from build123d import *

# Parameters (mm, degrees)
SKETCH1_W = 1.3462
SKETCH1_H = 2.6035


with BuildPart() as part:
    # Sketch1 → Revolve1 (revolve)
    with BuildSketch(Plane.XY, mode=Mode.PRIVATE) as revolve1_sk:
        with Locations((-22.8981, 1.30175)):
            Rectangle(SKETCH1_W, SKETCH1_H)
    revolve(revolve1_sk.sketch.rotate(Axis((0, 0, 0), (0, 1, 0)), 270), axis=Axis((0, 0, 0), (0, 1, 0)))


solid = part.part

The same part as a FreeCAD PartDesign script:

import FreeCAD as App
import Part
import Sketcher
from FreeCAD import Vector
Q = App.Units.Quantity


def add_polygon(sketch, points):
    """Adds a closed chain of lines whose ends are joined by coincident constraints."""
    first, n = sketch.GeometryCount, len(points)
    for a, b in zip(points, points[1:] + points[:1]):
        sketch.addGeometry(Part.LineSegment(App.Vector(*a, 0), App.Vector(*b, 0)), False)
    for i in range(n):
        sketch.addConstraint(Sketcher.Constraint("Coincident", first + i, 2, first + (i + 1) % n, 1))

doc = App.newDocument("Part")
params = doc.addObject("Spreadsheet::Sheet", "Params")
for row, (alias, value) in enumerate([
    ("sketch1_width", "0.053 in"),
    ("revolution_angle", "360 deg"),
], start=1):
    params.set(f"A{row}", alias)
    params.set(f"B{row}", "=" + value)
    params.setAlias(f"B{row}", alias)

body = doc.addObject("PartDesign::Body", "Body")

sketch1 = doc.addObject("Sketcher::SketchObject", "Sketch")
body.addObject(sketch1)
sketch1.AttachmentSupport = (doc.XY_Plane, [""])
sketch1.MapMode = "FlatFace"
add_polygon(sketch1, [(-23.6, 2.6), (-23.6, 0), (-22.2, 0), (-22.2, 2.6)])
sketch1.addConstraint([
    Sketcher.Constraint("Vertical", 0),
    Sketcher.Constraint("Horizontal", 1),
    Sketcher.Constraint("Vertical", 2),
    Sketcher.Constraint("Horizontal", 3),
    Sketcher.Constraint("PointOnObject", 0, 2, -1),
    Sketcher.Constraint("DistanceX", 1, 1, 1, 2, Q("0.053 in")),
    Sketcher.Constraint("DistanceY", 0, 2, 0, 1, Q("0.1025 in")),
    Sketcher.Constraint("DistanceX", 0, 2, -1, 1, Q("0.928 in")),
])
sketch1.setExpression("Constraints[9]", "Params.sketch1_width")
revolution = doc.addObject("PartDesign::Revolution", "Revolution")
body.addObject(revolution)
revolution.Profile = sketch1
revolution.ReferenceAxis = (sketch1, ["V_Axis"])
revolution.setExpression("Angle", "Params.revolution_angle")

doc.recompute()
